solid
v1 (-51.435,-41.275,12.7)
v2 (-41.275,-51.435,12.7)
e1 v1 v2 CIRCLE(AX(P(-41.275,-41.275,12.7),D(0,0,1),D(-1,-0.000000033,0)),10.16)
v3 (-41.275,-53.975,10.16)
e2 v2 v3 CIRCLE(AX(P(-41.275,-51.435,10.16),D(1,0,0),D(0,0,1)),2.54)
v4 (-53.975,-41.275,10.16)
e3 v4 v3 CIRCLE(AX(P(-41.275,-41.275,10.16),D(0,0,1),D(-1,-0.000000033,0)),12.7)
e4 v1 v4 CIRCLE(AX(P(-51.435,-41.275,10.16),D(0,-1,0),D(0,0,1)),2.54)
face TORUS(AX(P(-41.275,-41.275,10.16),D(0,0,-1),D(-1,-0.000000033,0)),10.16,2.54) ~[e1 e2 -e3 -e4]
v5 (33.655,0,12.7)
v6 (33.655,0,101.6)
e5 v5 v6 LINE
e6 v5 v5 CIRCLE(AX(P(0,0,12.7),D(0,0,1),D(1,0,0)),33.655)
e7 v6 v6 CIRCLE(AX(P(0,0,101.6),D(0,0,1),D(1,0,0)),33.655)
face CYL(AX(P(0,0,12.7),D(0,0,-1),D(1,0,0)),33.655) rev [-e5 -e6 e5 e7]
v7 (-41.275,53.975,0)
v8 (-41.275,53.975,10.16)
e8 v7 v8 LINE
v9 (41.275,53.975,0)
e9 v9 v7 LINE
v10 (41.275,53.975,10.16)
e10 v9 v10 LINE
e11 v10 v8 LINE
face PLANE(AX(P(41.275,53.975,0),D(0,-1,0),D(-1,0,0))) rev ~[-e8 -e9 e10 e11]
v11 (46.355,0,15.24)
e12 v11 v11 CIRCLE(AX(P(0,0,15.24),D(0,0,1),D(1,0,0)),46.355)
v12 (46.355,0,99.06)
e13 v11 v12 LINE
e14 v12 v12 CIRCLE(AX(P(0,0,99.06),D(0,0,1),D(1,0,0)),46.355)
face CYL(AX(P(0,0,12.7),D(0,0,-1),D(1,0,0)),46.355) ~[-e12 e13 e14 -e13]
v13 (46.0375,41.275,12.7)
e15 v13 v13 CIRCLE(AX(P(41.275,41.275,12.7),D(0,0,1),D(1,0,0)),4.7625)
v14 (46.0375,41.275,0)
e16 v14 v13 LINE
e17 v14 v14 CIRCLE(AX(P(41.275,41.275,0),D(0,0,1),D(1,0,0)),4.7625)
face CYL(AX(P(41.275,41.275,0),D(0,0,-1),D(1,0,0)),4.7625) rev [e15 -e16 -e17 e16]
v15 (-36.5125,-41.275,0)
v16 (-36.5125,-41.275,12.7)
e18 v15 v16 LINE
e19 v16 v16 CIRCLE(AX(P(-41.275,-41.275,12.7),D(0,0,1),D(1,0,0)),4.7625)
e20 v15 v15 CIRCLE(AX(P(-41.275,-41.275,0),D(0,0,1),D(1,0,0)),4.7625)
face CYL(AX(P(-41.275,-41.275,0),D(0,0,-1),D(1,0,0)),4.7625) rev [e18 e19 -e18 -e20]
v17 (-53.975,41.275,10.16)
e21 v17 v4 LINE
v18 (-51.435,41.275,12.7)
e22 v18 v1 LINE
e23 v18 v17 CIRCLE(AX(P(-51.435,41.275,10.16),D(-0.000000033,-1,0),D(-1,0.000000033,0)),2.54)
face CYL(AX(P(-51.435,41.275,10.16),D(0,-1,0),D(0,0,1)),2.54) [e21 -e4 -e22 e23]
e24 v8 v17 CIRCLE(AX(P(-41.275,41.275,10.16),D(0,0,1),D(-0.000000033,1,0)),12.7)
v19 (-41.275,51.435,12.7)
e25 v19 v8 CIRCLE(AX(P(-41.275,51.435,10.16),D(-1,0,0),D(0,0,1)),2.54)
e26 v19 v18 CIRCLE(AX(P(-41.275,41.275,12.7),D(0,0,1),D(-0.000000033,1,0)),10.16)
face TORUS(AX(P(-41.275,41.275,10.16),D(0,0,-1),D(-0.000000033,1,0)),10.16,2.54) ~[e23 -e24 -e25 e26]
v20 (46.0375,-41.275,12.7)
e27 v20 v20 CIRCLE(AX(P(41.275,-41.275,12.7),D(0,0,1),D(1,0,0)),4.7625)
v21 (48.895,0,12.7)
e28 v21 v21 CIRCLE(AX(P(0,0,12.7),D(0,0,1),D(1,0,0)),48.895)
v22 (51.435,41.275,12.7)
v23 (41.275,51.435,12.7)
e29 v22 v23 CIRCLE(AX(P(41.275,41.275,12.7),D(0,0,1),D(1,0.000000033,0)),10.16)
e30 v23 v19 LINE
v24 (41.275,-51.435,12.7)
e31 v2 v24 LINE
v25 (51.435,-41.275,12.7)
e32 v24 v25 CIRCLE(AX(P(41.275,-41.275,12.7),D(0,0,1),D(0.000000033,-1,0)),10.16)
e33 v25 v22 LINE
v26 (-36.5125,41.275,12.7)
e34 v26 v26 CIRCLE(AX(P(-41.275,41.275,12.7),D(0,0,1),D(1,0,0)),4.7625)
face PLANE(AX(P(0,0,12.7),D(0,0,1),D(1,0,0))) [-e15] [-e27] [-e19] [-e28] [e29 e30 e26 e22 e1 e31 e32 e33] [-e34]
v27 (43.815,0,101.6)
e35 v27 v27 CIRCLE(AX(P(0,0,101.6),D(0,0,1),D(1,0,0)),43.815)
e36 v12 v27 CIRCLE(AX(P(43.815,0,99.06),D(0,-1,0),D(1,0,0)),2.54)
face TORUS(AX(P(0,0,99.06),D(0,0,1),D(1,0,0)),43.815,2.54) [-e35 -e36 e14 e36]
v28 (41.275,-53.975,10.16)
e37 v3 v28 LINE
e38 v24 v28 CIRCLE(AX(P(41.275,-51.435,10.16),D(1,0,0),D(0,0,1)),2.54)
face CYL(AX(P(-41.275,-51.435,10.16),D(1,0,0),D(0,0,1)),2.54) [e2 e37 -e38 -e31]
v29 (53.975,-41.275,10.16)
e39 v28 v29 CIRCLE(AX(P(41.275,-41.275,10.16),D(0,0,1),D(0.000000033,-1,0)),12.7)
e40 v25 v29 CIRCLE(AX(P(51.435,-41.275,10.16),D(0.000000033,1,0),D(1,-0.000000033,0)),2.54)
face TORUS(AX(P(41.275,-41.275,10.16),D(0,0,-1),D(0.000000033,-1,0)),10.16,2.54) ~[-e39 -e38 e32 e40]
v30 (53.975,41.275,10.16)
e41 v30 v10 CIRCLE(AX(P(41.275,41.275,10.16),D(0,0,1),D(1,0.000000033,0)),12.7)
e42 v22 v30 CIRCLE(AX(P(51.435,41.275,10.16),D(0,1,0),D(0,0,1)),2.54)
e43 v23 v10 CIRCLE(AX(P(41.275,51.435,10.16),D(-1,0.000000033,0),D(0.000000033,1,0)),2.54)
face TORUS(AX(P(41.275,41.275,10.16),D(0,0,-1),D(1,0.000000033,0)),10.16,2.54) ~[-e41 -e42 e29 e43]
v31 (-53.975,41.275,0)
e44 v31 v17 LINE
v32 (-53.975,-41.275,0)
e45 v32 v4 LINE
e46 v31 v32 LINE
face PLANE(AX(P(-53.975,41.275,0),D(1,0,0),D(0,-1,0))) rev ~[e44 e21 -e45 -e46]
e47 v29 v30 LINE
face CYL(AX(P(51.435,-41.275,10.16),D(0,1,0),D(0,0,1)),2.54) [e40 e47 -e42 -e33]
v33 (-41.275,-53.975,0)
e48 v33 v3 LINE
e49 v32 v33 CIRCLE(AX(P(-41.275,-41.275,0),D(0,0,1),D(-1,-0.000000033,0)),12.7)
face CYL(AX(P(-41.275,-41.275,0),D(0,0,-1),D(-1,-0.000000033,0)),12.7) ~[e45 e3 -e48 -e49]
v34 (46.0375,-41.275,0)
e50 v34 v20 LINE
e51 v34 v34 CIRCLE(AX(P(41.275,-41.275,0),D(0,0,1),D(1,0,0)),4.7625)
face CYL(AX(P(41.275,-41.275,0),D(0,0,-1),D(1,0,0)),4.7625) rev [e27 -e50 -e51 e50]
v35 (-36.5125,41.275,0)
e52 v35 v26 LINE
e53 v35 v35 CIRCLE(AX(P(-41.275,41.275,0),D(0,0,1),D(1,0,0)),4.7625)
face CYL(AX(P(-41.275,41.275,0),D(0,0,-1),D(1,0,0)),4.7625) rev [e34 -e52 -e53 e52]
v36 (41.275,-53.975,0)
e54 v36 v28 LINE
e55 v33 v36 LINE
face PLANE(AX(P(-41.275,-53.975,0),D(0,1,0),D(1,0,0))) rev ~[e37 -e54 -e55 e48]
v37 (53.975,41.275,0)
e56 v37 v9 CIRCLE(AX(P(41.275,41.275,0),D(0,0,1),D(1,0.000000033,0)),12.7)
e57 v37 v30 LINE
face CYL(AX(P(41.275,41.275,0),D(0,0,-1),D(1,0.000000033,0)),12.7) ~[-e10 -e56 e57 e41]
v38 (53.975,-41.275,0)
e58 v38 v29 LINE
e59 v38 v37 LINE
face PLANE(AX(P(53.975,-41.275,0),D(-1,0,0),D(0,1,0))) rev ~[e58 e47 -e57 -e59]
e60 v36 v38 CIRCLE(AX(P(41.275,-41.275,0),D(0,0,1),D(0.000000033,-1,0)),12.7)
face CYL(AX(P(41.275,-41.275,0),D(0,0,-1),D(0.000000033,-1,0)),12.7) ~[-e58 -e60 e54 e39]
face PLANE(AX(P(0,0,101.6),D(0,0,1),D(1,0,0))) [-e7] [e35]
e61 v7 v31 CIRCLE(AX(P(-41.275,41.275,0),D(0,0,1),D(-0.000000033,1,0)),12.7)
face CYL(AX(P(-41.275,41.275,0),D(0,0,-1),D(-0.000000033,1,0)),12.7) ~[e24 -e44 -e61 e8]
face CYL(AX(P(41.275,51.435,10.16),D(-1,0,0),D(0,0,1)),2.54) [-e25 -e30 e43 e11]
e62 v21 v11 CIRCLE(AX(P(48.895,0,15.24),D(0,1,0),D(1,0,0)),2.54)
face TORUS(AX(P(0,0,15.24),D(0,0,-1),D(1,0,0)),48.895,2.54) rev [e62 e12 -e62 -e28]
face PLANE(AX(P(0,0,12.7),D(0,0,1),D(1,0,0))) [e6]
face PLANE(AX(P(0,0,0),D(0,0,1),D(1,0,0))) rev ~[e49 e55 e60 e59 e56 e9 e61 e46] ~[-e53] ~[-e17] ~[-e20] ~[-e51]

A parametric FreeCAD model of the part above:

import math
import FreeCAD as App
import Part
import Sketcher
from FreeCAD import Vector
Q = App.Units.Quantity


def edges_at(feature, points):
    """Names of the edges that pass closest to the given points."""
    edges = feature.Shape.Edges
    near = lambda p: min(range(len(edges)), key=lambda i: edges[i].distToShape(Part.Vertex(*p))[0])
    return sorted({f"Edge{near(p) + 1}" for p in points})

doc = App.newDocument("Part")
body = doc.addObject("PartDesign::Body", "Body")

sketch1 = body.newObject("Sketcher::SketchObject", "Sketch")
sketch1.AttachmentSupport = (doc.getObject("XY_Plane"), [""])
sketch1.MapMode = "FlatFace"
sketch1.addGeometry([
    Part.ArcOfCircle(Part.Circle(Vector(41.3, 41.3, 0), Vector(0, 0, 1), 12.7), math.radians(0), math.radians(90)),
    Part.LineSegment(Vector(41.3, 54, 0), Vector(-41.3, 54, 0)),
    Part.ArcOfCircle(Part.Circle(Vector(-41.3, 41.3, 0), Vector(0, 0, 1), 12.7), math.radians(90), math.radians(180)),
    Part.LineSegment(Vector(-54, 41.3, 0), Vector(-54, -41.3, 0)),
    Part.ArcOfCircle(Part.Circle(Vector(-41.3, -41.3, 0), Vector(0, 0, 1), 12.7), math.radians(-180), math.radians(-90)),
    Part.LineSegment(Vector(-41.3, -54, 0), Vector(41.3, -54, 0)),
    Part.ArcOfCircle(Part.Circle(Vector(41.3, -41.3, 0), Vector(0, 0, 1), 12.7), math.radians(-90), math.radians(0)),
    Part.LineSegment(Vector(54, -41.3, 0), Vector(54, 41.3, 0)),
    Part.Circle(Vector(-41.3, -41.3, 0), Vector(0, 0, 1), 4.8),
    Part.Circle(Vector(41.3, -41.3, 0), Vector(0, 0, 1), 4.8),
    Part.Circle(Vector(-41.3, 41.3, 0), Vector(0, 0, 1), 4.8),
    Part.Circle(Vector(41.3, 41.3, 0), Vector(0, 0, 1), 4.8),
], False)
sketch1.addConstraint([
    Sketcher.Constraint("Tangent", 0, 2, 1, 1),
    Sketcher.Constraint("Tangent", 1, 2, 2, 1),
    Sketcher.Constraint("Tangent", 2, 2, 3, 1),
    Sketcher.Constraint("Tangent", 3, 2, 4, 1),
    Sketcher.Constraint("Tangent", 4, 2, 5, 1),
    Sketcher.Constraint("Tangent", 5, 2, 6, 1),
    Sketcher.Constraint("Tangent", 6, 2, 7, 1),
    Sketcher.Constraint("Tangent", 7, 2, 0, 1),
    Sketcher.Constraint("Horizontal", 1),
    Sketcher.Constraint("Vertical", 3),
    Sketcher.Constraint("Horizontal", 5),
    Sketcher.Constraint("Vertical", 7),
    Sketcher.Constraint("Coincident", 8, 3, 4, 3),
    Sketcher.Constraint("Coincident", 9, 3, 6, 3),
    Sketcher.Constraint("Coincident", 10, 3, 2, 3),
    Sketcher.Constraint("Coincident", 11, 3, 0, 3),
    Sketcher.Constraint("Equal", 0, 2),
    Sketcher.Constraint("Equal", 2, 4),
    Sketcher.Constraint("Equal", 4, 6),
    Sketcher.Constraint("Equal", 8, 9),
    Sketcher.Constraint("Equal", 9, 10),
    Sketcher.Constraint("Equal", 10, 11),
    Sketcher.Constraint("Symmetric", 0, 3, 4, 3, -1, 1),
    Sketcher.Constraint("Equal", 5, 3),
    Sketcher.Constraint("Radius", 0, Q("0.5 in")),
    Sketcher.Constraint("Diameter", 8, Q("0.375 in")),
    Sketcher.Constraint("DistanceX", 1, 2, 1, 1, Q("3.25 in")),
])
pad1 = body.newObject("PartDesign::Pad", "Pad")
pad1.Profile = sketch1
pad1.Length = Q("0.5 in")

sketch2 = body.newObject("Sketcher::SketchObject", "Sketch001")
sketch2.AttachmentSupport = (doc.getObject("XY_Plane"), [""])
sketch2.MapMode = "FlatFace"
sketch2.AttachmentOffset = App.Placement(Vector(0, 0, 0.5 * 25.4), App.Rotation())
sketch2.addGeometry([
    Part.Circle(Vector(0, 0, 0), Vector(0, 0, 1), 46),
    Part.Circle(Vector(0, 0, 0), Vector(0, 0, 1), 34),
], False)
sketch2.addConstraint([
    Sketcher.Constraint("Coincident", 0, 3, -1, 1),
    Sketcher.Constraint("Coincident", 1, 3, -1, 1),
    Sketcher.Constraint("Diameter", 0, Q("3.65 in")),
    Sketcher.Constraint("Diameter", 1, Q("2.65 in")),
])
pad2 = body.newObject("PartDesign::Pad", "Pad001")
pad2.Profile = sketch2
pad2.Length = Q("3.5 in")
doc.recompute()

fillet = body.newObject("PartDesign::Fillet", "Fillet")
fillet.Base = (pad2, edges_at(pad2, [(-46.355, 0, 12.7), (0, -53.975, 12.7), (-46.355, 0, 101.6)]))
fillet.Radius = Q("0.1 in")

doc.recompute()
